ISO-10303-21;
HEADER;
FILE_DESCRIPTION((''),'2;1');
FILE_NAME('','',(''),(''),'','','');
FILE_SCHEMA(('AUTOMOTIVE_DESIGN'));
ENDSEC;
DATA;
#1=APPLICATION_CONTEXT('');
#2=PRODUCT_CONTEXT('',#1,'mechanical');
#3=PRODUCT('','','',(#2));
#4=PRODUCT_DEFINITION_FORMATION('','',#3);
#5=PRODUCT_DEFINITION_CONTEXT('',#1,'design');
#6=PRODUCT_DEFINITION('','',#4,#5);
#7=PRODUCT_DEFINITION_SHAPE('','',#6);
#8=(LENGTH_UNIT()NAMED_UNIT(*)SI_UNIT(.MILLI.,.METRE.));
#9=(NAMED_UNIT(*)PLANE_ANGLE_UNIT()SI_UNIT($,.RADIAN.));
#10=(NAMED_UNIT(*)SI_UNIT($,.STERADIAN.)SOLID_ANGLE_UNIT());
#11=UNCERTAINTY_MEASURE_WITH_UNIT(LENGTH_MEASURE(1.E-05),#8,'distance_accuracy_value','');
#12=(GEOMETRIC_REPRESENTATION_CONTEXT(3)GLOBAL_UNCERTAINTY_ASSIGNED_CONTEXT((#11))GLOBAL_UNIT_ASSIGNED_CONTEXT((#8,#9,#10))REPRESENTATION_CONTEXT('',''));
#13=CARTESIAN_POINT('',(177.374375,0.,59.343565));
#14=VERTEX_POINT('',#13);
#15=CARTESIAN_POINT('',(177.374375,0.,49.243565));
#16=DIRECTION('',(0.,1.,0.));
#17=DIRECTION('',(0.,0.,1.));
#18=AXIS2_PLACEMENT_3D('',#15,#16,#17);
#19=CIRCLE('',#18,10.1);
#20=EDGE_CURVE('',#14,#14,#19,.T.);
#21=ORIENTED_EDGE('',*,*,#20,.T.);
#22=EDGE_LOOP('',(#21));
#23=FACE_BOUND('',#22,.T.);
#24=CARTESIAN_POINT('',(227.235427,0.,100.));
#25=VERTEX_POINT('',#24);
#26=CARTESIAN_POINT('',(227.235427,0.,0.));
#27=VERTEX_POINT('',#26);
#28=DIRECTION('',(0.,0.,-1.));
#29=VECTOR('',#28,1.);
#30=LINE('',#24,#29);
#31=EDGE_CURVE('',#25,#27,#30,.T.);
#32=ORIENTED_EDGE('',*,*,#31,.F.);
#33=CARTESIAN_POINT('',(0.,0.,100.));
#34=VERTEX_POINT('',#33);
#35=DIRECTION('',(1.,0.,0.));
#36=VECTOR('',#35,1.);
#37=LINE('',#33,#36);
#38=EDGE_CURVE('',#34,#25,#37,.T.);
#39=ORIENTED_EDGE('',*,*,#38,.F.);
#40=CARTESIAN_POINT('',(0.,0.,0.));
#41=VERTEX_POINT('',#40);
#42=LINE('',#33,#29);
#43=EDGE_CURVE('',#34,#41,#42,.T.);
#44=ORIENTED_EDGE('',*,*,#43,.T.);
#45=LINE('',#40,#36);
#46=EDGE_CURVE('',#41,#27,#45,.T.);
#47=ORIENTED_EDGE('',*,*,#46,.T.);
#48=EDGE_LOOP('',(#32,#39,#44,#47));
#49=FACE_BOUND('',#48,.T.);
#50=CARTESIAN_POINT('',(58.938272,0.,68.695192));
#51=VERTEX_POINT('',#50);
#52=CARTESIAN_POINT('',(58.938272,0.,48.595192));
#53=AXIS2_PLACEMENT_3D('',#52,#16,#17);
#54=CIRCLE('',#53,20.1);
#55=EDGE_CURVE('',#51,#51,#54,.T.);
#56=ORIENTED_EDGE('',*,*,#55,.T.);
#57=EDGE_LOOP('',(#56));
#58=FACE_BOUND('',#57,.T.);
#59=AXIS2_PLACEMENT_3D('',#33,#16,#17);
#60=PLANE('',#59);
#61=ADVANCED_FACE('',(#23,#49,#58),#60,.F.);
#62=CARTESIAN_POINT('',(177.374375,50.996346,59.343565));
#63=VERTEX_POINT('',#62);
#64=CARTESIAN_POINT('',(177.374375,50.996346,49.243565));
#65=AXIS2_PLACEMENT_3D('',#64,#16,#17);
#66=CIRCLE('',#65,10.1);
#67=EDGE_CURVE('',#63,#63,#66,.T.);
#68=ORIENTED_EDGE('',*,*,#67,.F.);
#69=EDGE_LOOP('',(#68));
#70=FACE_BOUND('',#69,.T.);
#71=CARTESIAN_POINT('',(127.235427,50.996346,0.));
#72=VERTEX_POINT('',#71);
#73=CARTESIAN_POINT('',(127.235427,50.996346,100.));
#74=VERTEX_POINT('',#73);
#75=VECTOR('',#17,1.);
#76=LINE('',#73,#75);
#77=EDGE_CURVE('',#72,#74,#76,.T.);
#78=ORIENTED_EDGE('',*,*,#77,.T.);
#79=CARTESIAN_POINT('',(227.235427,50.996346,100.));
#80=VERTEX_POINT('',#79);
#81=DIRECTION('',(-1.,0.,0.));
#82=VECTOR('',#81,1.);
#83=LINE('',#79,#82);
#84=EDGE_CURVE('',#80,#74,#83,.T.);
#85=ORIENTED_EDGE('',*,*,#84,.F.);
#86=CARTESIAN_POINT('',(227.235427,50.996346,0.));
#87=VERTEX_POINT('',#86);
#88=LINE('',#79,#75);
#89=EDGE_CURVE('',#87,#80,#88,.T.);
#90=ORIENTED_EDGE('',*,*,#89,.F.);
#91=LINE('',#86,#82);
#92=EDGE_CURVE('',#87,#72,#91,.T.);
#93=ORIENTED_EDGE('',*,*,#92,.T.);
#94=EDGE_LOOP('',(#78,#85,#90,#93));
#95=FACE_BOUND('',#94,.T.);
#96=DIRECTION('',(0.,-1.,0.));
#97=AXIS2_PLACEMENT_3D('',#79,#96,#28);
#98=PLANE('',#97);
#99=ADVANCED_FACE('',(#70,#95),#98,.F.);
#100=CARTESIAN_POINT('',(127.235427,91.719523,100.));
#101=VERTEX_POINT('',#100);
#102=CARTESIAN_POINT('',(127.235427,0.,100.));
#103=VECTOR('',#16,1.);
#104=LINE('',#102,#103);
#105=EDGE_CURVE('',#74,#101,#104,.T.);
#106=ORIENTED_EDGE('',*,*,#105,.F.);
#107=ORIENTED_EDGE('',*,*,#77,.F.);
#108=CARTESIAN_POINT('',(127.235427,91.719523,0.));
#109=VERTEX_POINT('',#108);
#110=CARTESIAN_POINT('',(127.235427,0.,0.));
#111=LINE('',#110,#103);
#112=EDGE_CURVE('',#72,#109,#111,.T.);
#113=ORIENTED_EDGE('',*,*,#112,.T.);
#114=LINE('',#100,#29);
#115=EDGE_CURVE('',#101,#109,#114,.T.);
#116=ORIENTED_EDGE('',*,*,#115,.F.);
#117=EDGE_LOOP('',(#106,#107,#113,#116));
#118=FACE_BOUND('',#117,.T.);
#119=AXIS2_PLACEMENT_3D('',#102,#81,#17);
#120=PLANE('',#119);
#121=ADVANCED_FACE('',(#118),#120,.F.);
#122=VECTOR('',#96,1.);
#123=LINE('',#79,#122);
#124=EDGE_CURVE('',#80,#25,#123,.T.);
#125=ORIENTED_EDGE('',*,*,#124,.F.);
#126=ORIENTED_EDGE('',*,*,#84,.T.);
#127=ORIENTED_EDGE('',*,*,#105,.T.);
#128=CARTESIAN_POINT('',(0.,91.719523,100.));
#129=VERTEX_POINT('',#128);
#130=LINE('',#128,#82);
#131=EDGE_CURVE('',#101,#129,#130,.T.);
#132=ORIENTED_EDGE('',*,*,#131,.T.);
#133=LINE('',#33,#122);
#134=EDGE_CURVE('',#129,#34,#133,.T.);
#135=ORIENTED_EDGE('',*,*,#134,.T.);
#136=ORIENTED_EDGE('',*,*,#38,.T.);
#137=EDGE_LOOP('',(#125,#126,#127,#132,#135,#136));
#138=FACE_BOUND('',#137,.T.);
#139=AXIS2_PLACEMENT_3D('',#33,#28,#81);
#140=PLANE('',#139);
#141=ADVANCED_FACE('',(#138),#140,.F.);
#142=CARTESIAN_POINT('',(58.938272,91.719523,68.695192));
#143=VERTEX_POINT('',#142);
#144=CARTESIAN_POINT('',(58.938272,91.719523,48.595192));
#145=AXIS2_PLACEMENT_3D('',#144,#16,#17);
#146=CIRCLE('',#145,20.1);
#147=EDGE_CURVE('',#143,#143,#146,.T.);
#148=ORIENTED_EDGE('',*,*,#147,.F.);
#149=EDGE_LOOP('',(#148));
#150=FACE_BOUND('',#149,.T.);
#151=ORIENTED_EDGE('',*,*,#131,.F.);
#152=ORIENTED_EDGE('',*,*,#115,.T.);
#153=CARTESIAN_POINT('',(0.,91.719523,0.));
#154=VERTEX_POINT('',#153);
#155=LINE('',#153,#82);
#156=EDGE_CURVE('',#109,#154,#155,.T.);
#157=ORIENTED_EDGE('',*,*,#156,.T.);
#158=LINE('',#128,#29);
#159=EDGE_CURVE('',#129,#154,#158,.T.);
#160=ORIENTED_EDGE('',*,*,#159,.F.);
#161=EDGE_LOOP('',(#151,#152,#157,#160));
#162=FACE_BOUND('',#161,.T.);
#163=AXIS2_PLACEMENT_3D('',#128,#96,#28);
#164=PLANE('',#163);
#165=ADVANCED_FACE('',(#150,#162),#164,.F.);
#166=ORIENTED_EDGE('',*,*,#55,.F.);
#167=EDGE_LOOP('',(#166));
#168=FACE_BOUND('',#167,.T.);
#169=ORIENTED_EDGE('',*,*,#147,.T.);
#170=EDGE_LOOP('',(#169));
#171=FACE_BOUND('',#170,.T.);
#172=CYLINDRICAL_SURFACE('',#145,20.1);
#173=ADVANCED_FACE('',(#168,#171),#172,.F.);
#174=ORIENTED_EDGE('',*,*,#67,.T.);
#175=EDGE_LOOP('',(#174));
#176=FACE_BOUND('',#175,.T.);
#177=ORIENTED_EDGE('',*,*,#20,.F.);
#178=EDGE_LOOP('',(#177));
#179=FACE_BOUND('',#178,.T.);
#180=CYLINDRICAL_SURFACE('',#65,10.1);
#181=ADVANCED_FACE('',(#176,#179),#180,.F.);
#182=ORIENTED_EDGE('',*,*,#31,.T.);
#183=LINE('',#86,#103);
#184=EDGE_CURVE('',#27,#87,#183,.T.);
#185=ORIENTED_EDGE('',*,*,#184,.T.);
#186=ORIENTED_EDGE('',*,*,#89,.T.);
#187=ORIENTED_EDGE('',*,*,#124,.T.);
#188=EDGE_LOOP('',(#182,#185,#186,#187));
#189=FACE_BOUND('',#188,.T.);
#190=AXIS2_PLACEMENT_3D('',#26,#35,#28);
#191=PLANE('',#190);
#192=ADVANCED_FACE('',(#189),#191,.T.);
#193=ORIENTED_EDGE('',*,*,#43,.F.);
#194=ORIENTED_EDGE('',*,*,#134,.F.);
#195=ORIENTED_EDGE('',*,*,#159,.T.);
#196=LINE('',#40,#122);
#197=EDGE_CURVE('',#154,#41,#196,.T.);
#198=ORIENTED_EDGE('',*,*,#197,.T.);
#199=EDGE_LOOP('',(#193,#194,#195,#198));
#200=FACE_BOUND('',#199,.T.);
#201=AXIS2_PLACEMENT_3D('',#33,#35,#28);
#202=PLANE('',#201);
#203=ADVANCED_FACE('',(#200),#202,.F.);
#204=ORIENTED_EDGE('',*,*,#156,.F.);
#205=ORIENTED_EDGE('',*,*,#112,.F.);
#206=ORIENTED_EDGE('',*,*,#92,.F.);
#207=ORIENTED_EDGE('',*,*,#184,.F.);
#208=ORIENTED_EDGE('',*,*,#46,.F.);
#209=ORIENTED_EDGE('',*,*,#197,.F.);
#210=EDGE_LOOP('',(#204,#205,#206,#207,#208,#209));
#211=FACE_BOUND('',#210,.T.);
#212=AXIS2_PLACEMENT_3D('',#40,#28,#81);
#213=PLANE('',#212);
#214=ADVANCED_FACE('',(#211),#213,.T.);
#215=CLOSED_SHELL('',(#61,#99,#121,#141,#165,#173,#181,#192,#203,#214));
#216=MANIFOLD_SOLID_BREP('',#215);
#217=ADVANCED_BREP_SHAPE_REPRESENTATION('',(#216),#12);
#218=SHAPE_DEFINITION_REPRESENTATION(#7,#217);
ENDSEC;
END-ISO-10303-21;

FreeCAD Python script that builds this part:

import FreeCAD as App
import Part
import Sketcher

V = App.Vector
Q = App.Units.Quantity

doc = App.newDocument("Part")
body = doc.addObject("PartDesign::Body", "Body")

sketch1 = doc.addObject("Sketcher::SketchObject", "Sketch")
body.addObject(sketch1)
sketch1.AttachmentSupport = (doc.XY_Plane, [""])
sketch1.MapMode = "FlatFace"
sketch1.addGeometry(Part.LineSegment(V(0, 91.719523, 0), V(0, 0, 0)), False)
sketch1.addGeometry(Part.LineSegment(V(0, 0, 0), V(127.235427, 0, 0)), False)
sketch1.addGeometry(Part.LineSegment(V(127.235427, 0, 0), V(127.235427, 91.719523, 0)), False)
sketch1.addGeometry(Part.LineSegment(V(127.235427, 91.719523, 0), V(0, 91.719523, 0)), False)
sketch1.addConstraint(Sketcher.Constraint("Coincident", 0, 2, 1, 1))
sketch1.addConstraint(Sketcher.Constraint("Coincident", 1, 2, 2, 1))
sketch1.addConstraint(Sketcher.Constraint("Coincident", 2, 2, 3, 1))
sketch1.addConstraint(Sketcher.Constraint("Coincident", 3, 2, 0, 1))
sketch1.addConstraint(Sketcher.Constraint("Vertical", 0))
sketch1.addConstraint(Sketcher.Constraint("Horizontal", 1))
sketch1.addConstraint(Sketcher.Constraint("Vertical", 2))
sketch1.addConstraint(Sketcher.Constraint("Horizontal", 3))
sketch1.addConstraint(Sketcher.Constraint("Coincident", 0, 2, -1, 1))
sketch1.addConstraint(Sketcher.Constraint("DistanceX", 1, 1, 1, 2, Q("127.235427 mm")))
sketch1.addConstraint(Sketcher.Constraint("DistanceY", 0, 2, 0, 1, Q("91.719523 mm")))
pad1 = doc.addObject("PartDesign::Pad", "Pad")
body.addObject(pad1)
pad1.Profile = sketch1
pad1.Length = 100

sketch2 = doc.addObject("Sketcher::SketchObject", "Sketch001")
body.addObject(sketch2)
sketch2.AttachmentSupport = (doc.YZ_Plane, [""])
sketch2.MapMode = "FlatFace"
sketch2.AttachmentOffset = App.Placement(V(0, 0, 127.235427), App.Rotation())
sketch2.addGeometry(Part.LineSegment(V(50.996346, 100, 0), V(0, 100, 0)), False)
sketch2.addGeometry(Part.LineSegment(V(0, 100, 0), V(0, 0, 0)), False)
sketch2.addGeometry(Part.LineSegment(V(0, 0, 0), V(50.996346, 0, 0)), False)
sketch2.addGeometry(Part.LineSegment(V(50.996346, 0, 0), V(50.996346, 100, 0)), False)
sketch2.addConstraint(Sketcher.Constraint("Coincident", 0, 2, 1, 1))
sketch2.addConstraint(Sketcher.Constraint("Coincident", 1, 2, 2, 1))
sketch2.addConstraint(Sketcher.Constraint("Coincident", 2, 2, 3, 1))
sketch2.addConstraint(Sketcher.Constraint("Coincident", 3, 2, 0, 1))
sketch2.addConstraint(Sketcher.Constraint("Horizontal", 0))
sketch2.addConstraint(Sketcher.Constraint("Vertical", 1))
sketch2.addConstraint(Sketcher.Constraint("Horizontal", 2))
sketch2.addConstraint(Sketcher.Constraint("Vertical", 3))
sketch2.addConstraint(Sketcher.Constraint("Coincident", 1, 2, -1, 1))
sketch2.addConstraint(Sketcher.Constraint("DistanceY", 1, 2, 1, 1, Q("100 mm")))
sketch2.addConstraint(Sketcher.Constraint("DistanceX", 0, 2, 0, 1, Q("50.996346 mm")))
pad2 = doc.addObject("PartDesign::Pad", "Pad001")
body.addObject(pad2)
pad2.Profile = sketch2
pad2.Length = 100

sketch3 = doc.addObject("Sketcher::SketchObject", "Sketch002")
body.addObject(sketch3)
sketch3.AttachmentSupport = (doc.XZ_Plane, [""])
sketch3.MapMode = "FlatFace"
sketch3.AttachmentOffset = App.Placement(V(0, 0, -50.996346), App.Rotation())
sketch3.addGeometry(Part.Circle(V(177.374375, 49.243565, 0), V(0, 0, 1), 10.1), False)
sketch3.addConstraint(Sketcher.Constraint("Diameter", 0, Q("20.2 mm")))
sketch3.addConstraint(Sketcher.Constraint("DistanceX", -1, 1, 0, 3, Q("177.374375 mm")))
sketch3.addConstraint(Sketcher.Constraint("DistanceY", -1, 1, 0, 3, Q("49.243565 mm")))
doc.recompute()
hole = doc.addObject("PartDesign::Hole", "Hole")
body.addObject(hole)
hole.Profile = sketch3
hole.ThreadType = "None"
hole.Diameter = 20.2
hole.DepthType = "ThroughAll"
hole.Reversed = True

sketch4 = doc.addObject("Sketcher::SketchObject", "Sketch003")
body.addObject(sketch4)
sketch4.AttachmentSupport = (doc.XZ_Plane, [""])
sketch4.MapMode = "FlatFace"
sketch4.AttachmentOffset = App.Placement(V(0, 0, -91.719523), App.Rotation())
sketch4.addGeometry(Part.Circle(V(58.938272, 48.595192, 0), V(0, 0, 1), 20.1), False)
sketch4.addConstraint(Sketcher.Constraint("Diameter", 0, Q("40.2 mm")))
sketch4.addConstraint(Sketcher.Constraint("DistanceX", -1, 1, 0, 3, Q("58.938272 mm")))
sketch4.addConstraint(Sketcher.Constraint("DistanceY", -1, 1, 0, 3, Q("48.595192 mm")))
doc.recompute()
hole2 = doc.addObject("PartDesign::Hole", "Hole001")
body.addObject(hole2)
hole2.Profile = sketch4
hole2.ThreadType = "None"
hole2.Diameter = 40.2
hole2.DepthType = "ThroughAll"
hole2.Reversed = True

doc.recompute()
